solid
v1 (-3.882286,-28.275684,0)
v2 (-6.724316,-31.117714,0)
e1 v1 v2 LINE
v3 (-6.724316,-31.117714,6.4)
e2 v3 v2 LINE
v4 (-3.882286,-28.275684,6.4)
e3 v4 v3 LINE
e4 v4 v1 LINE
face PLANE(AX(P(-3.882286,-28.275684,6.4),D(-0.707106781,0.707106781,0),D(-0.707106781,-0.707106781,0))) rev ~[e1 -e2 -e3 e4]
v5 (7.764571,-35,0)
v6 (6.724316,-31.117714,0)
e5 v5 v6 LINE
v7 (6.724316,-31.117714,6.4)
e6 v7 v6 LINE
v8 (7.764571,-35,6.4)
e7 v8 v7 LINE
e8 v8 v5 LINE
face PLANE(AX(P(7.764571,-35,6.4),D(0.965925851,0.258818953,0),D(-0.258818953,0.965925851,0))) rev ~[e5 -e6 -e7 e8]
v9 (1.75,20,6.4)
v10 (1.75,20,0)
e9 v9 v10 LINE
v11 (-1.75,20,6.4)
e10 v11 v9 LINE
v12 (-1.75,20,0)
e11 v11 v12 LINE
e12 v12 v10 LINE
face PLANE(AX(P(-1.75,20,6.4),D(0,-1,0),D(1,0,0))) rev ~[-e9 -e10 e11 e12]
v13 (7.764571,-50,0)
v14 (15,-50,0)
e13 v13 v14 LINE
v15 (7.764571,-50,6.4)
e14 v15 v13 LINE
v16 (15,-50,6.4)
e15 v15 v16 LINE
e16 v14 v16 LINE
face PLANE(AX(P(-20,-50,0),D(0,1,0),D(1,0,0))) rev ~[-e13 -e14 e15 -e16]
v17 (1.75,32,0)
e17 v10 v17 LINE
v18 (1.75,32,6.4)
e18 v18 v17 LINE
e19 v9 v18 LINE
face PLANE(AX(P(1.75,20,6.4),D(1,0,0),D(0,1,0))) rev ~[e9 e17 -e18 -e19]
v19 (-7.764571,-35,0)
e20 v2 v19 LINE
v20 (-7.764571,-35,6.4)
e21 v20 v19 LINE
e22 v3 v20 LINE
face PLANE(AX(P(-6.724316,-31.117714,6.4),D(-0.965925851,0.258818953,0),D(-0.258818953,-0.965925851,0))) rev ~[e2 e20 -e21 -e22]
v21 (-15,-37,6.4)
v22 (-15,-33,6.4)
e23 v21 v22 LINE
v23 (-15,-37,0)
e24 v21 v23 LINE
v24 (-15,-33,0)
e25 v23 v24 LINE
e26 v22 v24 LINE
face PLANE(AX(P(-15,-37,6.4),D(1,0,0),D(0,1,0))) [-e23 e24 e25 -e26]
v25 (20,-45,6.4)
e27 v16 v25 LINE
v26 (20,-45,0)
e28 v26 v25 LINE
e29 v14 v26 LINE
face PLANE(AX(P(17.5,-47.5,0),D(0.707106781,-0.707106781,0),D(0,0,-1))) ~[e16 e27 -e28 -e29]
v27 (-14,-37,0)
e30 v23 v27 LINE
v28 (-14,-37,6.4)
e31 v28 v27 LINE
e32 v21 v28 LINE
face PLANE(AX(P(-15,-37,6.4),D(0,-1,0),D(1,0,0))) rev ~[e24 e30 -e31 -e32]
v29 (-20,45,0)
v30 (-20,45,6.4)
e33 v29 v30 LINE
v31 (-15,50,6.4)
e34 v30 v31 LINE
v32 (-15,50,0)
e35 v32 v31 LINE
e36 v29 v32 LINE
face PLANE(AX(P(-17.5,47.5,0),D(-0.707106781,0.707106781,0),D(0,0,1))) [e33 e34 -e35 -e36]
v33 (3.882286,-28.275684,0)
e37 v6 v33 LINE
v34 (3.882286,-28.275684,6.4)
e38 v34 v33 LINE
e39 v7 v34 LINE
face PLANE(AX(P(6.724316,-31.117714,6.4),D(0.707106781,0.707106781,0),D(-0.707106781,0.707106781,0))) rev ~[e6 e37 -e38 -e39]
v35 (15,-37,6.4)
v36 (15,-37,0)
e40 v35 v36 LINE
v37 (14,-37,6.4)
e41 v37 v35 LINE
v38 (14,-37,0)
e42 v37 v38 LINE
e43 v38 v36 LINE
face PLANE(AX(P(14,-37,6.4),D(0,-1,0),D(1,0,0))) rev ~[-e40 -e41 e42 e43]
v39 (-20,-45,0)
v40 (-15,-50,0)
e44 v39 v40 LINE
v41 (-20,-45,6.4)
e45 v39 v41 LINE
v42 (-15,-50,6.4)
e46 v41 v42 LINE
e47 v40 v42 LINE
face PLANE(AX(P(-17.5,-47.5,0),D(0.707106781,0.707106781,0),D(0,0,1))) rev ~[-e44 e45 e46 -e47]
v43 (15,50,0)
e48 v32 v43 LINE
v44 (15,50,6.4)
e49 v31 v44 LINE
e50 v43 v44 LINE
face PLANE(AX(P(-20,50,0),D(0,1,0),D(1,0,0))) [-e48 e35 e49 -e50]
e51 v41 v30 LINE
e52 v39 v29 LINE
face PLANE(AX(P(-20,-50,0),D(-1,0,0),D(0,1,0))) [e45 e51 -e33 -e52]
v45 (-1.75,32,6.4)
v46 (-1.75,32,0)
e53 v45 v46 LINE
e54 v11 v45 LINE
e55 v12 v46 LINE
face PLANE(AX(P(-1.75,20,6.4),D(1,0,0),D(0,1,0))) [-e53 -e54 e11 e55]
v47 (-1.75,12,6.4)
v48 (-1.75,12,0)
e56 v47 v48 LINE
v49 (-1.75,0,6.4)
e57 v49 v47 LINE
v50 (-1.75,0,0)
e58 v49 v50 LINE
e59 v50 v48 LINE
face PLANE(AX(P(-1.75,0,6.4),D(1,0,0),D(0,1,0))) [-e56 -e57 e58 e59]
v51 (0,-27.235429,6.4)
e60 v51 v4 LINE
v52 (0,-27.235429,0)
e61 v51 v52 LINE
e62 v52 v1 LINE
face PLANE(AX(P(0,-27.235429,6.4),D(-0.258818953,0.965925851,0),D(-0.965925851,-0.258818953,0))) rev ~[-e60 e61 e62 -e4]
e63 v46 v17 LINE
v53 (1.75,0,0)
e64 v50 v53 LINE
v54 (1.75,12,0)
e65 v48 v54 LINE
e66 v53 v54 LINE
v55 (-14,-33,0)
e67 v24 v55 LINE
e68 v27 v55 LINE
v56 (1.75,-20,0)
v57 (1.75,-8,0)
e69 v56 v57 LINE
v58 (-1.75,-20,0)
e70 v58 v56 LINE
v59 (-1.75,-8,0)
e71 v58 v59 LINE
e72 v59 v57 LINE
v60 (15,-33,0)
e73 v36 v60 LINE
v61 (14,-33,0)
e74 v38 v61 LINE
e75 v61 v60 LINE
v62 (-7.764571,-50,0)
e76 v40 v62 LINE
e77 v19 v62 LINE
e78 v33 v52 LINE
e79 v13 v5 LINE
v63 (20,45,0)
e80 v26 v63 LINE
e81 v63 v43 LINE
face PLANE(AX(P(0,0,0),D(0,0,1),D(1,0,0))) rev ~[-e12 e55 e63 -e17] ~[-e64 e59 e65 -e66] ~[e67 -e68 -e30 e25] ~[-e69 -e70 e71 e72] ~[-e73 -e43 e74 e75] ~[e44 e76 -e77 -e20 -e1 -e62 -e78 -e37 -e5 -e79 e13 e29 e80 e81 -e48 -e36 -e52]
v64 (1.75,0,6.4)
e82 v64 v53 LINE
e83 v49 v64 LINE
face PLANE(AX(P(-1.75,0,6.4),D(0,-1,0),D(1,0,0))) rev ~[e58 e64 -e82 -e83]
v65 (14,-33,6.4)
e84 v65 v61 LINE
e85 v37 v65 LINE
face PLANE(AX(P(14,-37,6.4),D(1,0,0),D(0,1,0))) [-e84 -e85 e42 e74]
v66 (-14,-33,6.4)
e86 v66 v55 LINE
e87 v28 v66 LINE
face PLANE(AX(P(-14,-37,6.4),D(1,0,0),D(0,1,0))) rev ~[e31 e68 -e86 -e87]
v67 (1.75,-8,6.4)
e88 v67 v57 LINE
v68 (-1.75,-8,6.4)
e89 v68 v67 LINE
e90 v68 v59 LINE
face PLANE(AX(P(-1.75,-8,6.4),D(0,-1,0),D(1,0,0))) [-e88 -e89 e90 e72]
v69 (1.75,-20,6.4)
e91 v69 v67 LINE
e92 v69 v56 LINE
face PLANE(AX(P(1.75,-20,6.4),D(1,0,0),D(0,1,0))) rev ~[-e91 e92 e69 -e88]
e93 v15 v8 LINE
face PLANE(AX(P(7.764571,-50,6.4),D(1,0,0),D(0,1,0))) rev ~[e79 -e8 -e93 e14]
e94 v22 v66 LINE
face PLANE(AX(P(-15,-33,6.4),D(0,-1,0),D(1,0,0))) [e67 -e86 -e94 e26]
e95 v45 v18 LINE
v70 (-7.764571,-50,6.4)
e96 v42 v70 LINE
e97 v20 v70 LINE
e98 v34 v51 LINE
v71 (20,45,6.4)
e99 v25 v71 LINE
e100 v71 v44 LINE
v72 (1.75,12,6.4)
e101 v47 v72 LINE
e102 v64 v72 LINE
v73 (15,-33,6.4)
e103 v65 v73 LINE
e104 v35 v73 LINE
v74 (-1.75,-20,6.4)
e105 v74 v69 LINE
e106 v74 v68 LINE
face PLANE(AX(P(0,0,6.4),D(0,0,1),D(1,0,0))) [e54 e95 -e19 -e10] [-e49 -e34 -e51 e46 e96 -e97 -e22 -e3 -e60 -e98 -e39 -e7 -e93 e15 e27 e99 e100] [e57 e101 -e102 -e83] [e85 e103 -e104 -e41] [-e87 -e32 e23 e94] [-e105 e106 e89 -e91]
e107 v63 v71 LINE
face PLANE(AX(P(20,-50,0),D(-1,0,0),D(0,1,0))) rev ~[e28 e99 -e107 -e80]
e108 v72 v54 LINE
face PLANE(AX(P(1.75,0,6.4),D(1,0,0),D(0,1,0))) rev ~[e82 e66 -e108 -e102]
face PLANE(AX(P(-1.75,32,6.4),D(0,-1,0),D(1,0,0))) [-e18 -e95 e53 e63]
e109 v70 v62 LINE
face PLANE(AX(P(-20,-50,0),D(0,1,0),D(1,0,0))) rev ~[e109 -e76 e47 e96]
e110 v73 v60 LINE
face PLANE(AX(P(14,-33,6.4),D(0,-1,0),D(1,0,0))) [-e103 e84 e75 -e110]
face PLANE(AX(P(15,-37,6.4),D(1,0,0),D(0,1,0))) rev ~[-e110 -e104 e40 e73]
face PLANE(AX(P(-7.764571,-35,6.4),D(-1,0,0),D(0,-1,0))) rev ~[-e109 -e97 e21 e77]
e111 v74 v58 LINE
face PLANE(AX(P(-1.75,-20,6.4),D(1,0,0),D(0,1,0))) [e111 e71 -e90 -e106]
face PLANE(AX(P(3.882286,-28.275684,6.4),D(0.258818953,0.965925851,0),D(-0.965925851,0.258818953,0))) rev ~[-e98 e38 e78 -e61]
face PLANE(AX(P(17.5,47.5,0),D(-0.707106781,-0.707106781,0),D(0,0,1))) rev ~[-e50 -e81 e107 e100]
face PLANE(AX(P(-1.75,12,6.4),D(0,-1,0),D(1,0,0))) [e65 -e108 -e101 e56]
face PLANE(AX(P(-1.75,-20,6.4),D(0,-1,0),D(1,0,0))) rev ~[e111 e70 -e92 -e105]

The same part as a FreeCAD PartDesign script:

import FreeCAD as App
import Part
import Sketcher

V = App.Vector
Q = App.Units.Quantity


def edges_at(feature, points):
    """Names of the edges that pass closest to the given points."""
    edges = feature.Shape.Edges
    near = lambda p: min(range(len(edges)), key=lambda i: edges[i].distToShape(Part.Vertex(*p))[0])
    return sorted({f"Edge{near(p) + 1}" for p in points})


def add_polygon(sketch, points):
    """Adds a closed chain of lines whose ends are joined by coincident constraints."""
    first, n = sketch.GeometryCount, len(points)
    for a, b in zip(points, points[1:] + points[:1]):
        sketch.addGeometry(Part.LineSegment(App.Vector(*a, 0), App.Vector(*b, 0)), False)
    for i in range(n):
        sketch.addConstraint(Sketcher.Constraint("Coincident", first + i, 2, first + (i + 1) % n, 1))

doc = App.newDocument("Part")
body = doc.addObject("PartDesign::Body", "Body")

# Sketch on XY plane
sketch1 = doc.addObject("Sketcher::SketchObject", "Sketch")
body.addObject(sketch1)
sketch1.AttachmentSupport = (doc.XY_Plane, [""])
sketch1.MapMode = "FlatFace"
add_polygon(sketch1, [(-20, 50), (-20, -50), (20, -50), (20, 50)])  # lines 0-3
sketch1.addConstraint([
    Sketcher.Constraint("Vertical", 0),
    Sketcher.Constraint("Horizontal", 1),
    Sketcher.Constraint("Vertical", 2),
    Sketcher.Constraint("Horizontal", 3),
    Sketcher.Constraint("Symmetric", 0, 2, 2, 2, -1, 1),
    Sketcher.Constraint("DistanceX", 1, 1, 1, 2, Q("40 mm")),
    Sketcher.Constraint("DistanceY", 0, 2, 0, 1, Q("100 mm")),
])
pad1 = doc.addObject("PartDesign::Pad", "Pad")
body.addObject(pad1)
pad1.Profile = sketch1
pad1.Length = 6.4
doc.recompute()

chamfer = doc.addObject("PartDesign::Chamfer", "Chamfer")
body.addObject(chamfer)
chamfer.Base = (pad1, edges_at(pad1, [
    (-20, -50, 3.2),
    (20, -50, 3.2),
    (20, 50, 3.2),
    (-20, 50, 3.2),
]))
chamfer.Size = 5

# Sketch on XY plane
sketch2 = doc.addObject("Sketcher::SketchObject", "Sketch001")
body.addObject(sketch2)
sketch2.AttachmentSupport = (doc.XY_Plane, [""])
sketch2.MapMode = "FlatFace"
sketch2.AttachmentOffset = App.Placement(V(0, 0, 6.4), App.Rotation())
add_polygon(sketch2, [(7.8, -35), (6.7, -31.1), (3.9, -28.3), (0, -27.2), (-3.9, -28.3), (-6.7, -31.1), (-7.8, -35), (-7.8, -50), (7.8, -50)])  # lines 0-8
sketch2.addConstraint([
    Sketcher.Constraint("Vertical", 6),
    Sketcher.Constraint("Horizontal", 7),
    Sketcher.Constraint("Vertical", 8),
    Sketcher.Constraint("Symmetric", 1, 2, 3, 2, -2),
    Sketcher.Constraint("Symmetric", 0, 2, 4, 2, -2),
    Sketcher.Constraint("Symmetric", 5, 2, 8, 2, -2),
    Sketcher.Constraint("PointOnObject", 2, 2, -2),
    Sketcher.Constraint("Perpendicular", 0, 3),
    Sketcher.Constraint("Perpendicular", 1, 4),
    Sketcher.Constraint("Equal", 0, 1),
    Sketcher.Constraint("Equal", 1, 2),
    Sketcher.Constraint("DistanceY", 6, 2, 6, 1, Q("15 mm")),
    Sketcher.Constraint("Angle", 0, Q("104.999995 deg")),
    Sketcher.Constraint("DistanceY", 5, 2, -1, 1, Q("35 mm")),
    Sketcher.Constraint("Distance", 0, Q("4.019238 mm")),
])
pocket1 = doc.addObject("PartDesign::Pocket", "Pocket")
body.addObject(pocket1)
pocket1.Profile = sketch2
pocket1.Type = "ThroughAll"

# Sketch on XY plane
sketch3 = doc.addObject("Sketcher::SketchObject", "Sketch002")
body.addObject(sketch3)
sketch3.AttachmentSupport = (doc.XY_Plane, [""])
sketch3.MapMode = "FlatFace"
sketch3.AttachmentOffset = App.Placement(V(0, 0, 6.4), App.Rotation())
add_polygon(sketch3, [(14, -33), (14, -37), (15, -37), (15, -33)])  # lines 0-3
add_polygon(sketch3, [(-15, -33), (-15, -37), (-14, -37), (-14, -33)])  # lines 4-7
sketch3.addConstraint([
    Sketcher.Constraint("Vertical", 0),
    Sketcher.Constraint("Horizontal", 1),
    Sketcher.Constraint("Vertical", 2),
    Sketcher.Constraint("Horizontal", 3),
    Sketcher.Constraint("Vertical", 4),
    Sketcher.Constraint("Horizontal", 5),
    Sketcher.Constraint("Vertical", 6),
    Sketcher.Constraint("Horizontal", 7),
    Sketcher.Constraint("Symmetric", 1, 2, 4, 2, -2),
    Sketcher.Constraint("Symmetric", 3, 2, 6, 2, -2),
    Sketcher.Constraint("DistanceX", 1, 1, 1, 2, Q("1 mm")),
    Sketcher.Constraint("DistanceY", 0, 2, 0, 1, Q("4 mm")),
    Sketcher.Constraint("DistanceX", -1, 1, 0, 2, Q("14 mm")),
    Sketcher.Constraint("DistanceY", 0, 2, -1, 1, Q("37 mm")),
])
pocket2 = doc.addObject("PartDesign::Pocket", "Pocket001")
body.addObject(pocket2)
pocket2.Profile = sketch3
pocket2.Type = "ThroughAll"

# Sketch on XY plane
sketch4 = doc.addObject("Sketcher::SketchObject", "Sketch003")
body.addObject(sketch4)
sketch4.AttachmentSupport = (doc.XY_Plane, [""])
sketch4.MapMode = "FlatFace"
sketch4.AttachmentOffset = App.Placement(V(0, 0, 6.4), App.Rotation())
add_polygon(sketch4, [(-1.8, 12), (-1.8, 0), (1.8, 0), (1.8, 12)])  # lines 0-3
add_polygon(sketch4, [(-1.8, -8), (-1.8, -20), (1.8, -20), (1.8, -8)])  # lines 4-7
add_polygon(sketch4, [(-1.8, 32), (-1.8, 20), (1.8, 20), (1.8, 32)])  # lines 8-11
sketch4.addConstraint([
    Sketcher.Constraint("Vertical", 0),
    Sketcher.Constraint("Horizontal", 1),
    Sketcher.Constraint("Vertical", 2),
    Sketcher.Constraint("Horizontal", 3),
    Sketcher.Constraint("Vertical", 4),
    Sketcher.Constraint("Horizontal", 5),
    Sketcher.Constraint("Vertical", 6),
    Sketcher.Constraint("Horizontal", 7),
    Sketcher.Constraint("Vertical", 8),
    Sketcher.Constraint("Horizontal", 9),
    Sketcher.Constraint("Vertical", 10),
    Sketcher.Constraint("Horizontal", 11),
    Sketcher.Constraint("Symmetric", 0, 2, 1, 2, -1, 1),
    Sketcher.Constraint("Symmetric", 5, 2, 8, 2, -1, 1),
    Sketcher.Constraint("Vertical", 3, 2, 4, 2),
    Sketcher.Constraint("Vertical", 2, 2, 5, 2),
    Sketcher.Constraint("Vertical", 6, 2, 9, 2),
    Sketcher.Constraint("Equal", 2, 4),
    Sketcher.Constraint("Equal", 6, 8),
    Sketcher.Constraint("DistanceY", 0, 2, 0, 1, Q("12 mm")),
    Sketcher.Constraint("DistanceX", 1, 1, 1, 2, Q("3.5 mm")),
    Sketcher.Constraint("DistanceY", 4, 2, -1, 1, Q("20 mm")),
])
pocket3 = doc.addObject("PartDesign::Pocket", "Pocket002")
body.addObject(pocket3)
pocket3.Profile = sketch4
pocket3.Type = "ThroughAll"

doc.recompute()
